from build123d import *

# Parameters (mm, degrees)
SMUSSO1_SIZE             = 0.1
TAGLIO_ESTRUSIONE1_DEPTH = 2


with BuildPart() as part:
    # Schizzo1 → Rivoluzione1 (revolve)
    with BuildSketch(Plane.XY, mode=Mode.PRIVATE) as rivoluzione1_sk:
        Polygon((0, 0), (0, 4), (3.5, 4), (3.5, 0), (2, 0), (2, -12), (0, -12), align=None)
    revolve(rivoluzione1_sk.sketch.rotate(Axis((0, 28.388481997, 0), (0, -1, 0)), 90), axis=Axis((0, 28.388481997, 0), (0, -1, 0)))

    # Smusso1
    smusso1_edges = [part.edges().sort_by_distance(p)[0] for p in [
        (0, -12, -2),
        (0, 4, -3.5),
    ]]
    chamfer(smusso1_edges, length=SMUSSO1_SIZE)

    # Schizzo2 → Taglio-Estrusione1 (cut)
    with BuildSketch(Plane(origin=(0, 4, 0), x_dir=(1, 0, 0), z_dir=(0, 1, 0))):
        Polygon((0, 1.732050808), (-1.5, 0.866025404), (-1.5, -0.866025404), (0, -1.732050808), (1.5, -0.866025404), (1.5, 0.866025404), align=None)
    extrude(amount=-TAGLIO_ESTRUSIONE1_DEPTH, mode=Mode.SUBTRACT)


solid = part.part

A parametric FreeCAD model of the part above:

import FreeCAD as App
import Part
import Sketcher

V = App.Vector
Q = App.Units.Quantity


def edges_at(feature, points):
    """Names of the edges that pass closest to the given points."""
    edges = feature.Shape.Edges
    near = lambda p: min(range(len(edges)), key=lambda i: edges[i].distToShape(Part.Vertex(*p))[0])
    return sorted({f"Edge{near(p) + 1}" for p in points})


def add_polygon(sketch, points):
    """Adds a closed chain of lines whose ends are joined by coincident constraints."""
    first, n = sketch.GeometryCount, len(points)
    for a, b in zip(points, points[1:] + points[:1]):
        sketch.addGeometry(Part.LineSegment(App.Vector(*a, 0), App.Vector(*b, 0)), False)
    for i in range(n):
        sketch.addConstraint(Sketcher.Constraint("Coincident", first + i, 2, first + (i + 1) % n, 1))

doc = App.newDocument("Part")
body = doc.addObject("PartDesign::Body", "Body")

# Sketch on XY plane
sketch1 = body.newObject("Sketcher::SketchObject", "Sketch")
sketch1.AttachmentSupport = (doc.getObject("XY_Plane"), [""])
sketch1.MapMode = "FlatFace"
add_polygon(sketch1, [(0, 4), (0, -12), (2, -12), (2, 0), (3.5, 0), (3.5, 4)])  # lines 0-5
sketch1.addConstraint([
    Sketcher.Constraint("Vertical", 0),
    Sketcher.Constraint("Horizontal", 1),
    Sketcher.Constraint("Vertical", 2),
    Sketcher.Constraint("Horizontal", 3),
    Sketcher.Constraint("Vertical", 4),
    Sketcher.Constraint("Horizontal", 5),
    Sketcher.Constraint("PointOnObject", 0, 2, -2),
    Sketcher.Constraint("PointOnObject", 2, 2, -1),
    Sketcher.Constraint("DistanceX", 1, 1, 1, 2, Q("2 mm")),
    Sketcher.Constraint("DistanceY", 0, 2, 0, 1, Q("16 mm")),
    Sketcher.Constraint("DistanceY", 2, 1, 2, 2, Q("12 mm")),
    Sketcher.Constraint("DistanceX", 3, 1, 3, 2, Q("1.5 mm")),
])
revolution = body.newObject("PartDesign::Revolution", "Revolution")
revolution.Profile = sketch1
revolution.ReferenceAxis = (sketch1, ["V_Axis"])
revolution.Angle = 360
doc.recompute()

chamfer = body.newObject("PartDesign::Chamfer", "Chamfer")
chamfer.Base = (revolution, edges_at(revolution, [(0, -12, -2), (0, 4, -3.5)]))
chamfer.Size = 0.1

# Sketch on XZ plane
sketch2 = body.newObject("Sketcher::SketchObject", "Sketch001")
sketch2.AttachmentSupport = (doc.getObject("XZ_Plane"), [""])
sketch2.MapMode = "FlatFace"
sketch2.AttachmentOffset = App.Placement(V(0, 0, -4), App.Rotation())
add_polygon(sketch2, [(0, -1.7), (-1.5, -0.9), (-1.5, 0.9), (0, 1.7), (1.5, 0.9), (1.5, -0.9)])  # lines 0-5
sketch2.addConstraint([
    Sketcher.Constraint("Vertical", 1),
    Sketcher.Constraint("Vertical", 4),
    Sketcher.Constraint("Symmetric", 0, 2, 3, 2, -1, 1),
    Sketcher.Constraint("Symmetric", 2, 2, 5, 2, -1, 1),
    Sketcher.Constraint("PointOnObject", 2, 2, -2),
    Sketcher.Constraint("Parallel", 2, 5),
    Sketcher.Constraint("Horizontal", 1, 2, 3, 2),
    Sketcher.Constraint("Angle", 0, Q("150 deg")),
    Sketcher.Constraint("DistanceX", 1, 2, 3, 2, Q("3 mm")),
    Sketcher.Constraint("DistanceY", 1, 1, 1, 2, Q("1.732051 mm")),
])
pocket1 = body.newObject("PartDesign::Pocket", "Pocket")
pocket1.Profile = sketch2
pocket1.Length = 2
pocket1.Reversed = True

doc.recompute()
